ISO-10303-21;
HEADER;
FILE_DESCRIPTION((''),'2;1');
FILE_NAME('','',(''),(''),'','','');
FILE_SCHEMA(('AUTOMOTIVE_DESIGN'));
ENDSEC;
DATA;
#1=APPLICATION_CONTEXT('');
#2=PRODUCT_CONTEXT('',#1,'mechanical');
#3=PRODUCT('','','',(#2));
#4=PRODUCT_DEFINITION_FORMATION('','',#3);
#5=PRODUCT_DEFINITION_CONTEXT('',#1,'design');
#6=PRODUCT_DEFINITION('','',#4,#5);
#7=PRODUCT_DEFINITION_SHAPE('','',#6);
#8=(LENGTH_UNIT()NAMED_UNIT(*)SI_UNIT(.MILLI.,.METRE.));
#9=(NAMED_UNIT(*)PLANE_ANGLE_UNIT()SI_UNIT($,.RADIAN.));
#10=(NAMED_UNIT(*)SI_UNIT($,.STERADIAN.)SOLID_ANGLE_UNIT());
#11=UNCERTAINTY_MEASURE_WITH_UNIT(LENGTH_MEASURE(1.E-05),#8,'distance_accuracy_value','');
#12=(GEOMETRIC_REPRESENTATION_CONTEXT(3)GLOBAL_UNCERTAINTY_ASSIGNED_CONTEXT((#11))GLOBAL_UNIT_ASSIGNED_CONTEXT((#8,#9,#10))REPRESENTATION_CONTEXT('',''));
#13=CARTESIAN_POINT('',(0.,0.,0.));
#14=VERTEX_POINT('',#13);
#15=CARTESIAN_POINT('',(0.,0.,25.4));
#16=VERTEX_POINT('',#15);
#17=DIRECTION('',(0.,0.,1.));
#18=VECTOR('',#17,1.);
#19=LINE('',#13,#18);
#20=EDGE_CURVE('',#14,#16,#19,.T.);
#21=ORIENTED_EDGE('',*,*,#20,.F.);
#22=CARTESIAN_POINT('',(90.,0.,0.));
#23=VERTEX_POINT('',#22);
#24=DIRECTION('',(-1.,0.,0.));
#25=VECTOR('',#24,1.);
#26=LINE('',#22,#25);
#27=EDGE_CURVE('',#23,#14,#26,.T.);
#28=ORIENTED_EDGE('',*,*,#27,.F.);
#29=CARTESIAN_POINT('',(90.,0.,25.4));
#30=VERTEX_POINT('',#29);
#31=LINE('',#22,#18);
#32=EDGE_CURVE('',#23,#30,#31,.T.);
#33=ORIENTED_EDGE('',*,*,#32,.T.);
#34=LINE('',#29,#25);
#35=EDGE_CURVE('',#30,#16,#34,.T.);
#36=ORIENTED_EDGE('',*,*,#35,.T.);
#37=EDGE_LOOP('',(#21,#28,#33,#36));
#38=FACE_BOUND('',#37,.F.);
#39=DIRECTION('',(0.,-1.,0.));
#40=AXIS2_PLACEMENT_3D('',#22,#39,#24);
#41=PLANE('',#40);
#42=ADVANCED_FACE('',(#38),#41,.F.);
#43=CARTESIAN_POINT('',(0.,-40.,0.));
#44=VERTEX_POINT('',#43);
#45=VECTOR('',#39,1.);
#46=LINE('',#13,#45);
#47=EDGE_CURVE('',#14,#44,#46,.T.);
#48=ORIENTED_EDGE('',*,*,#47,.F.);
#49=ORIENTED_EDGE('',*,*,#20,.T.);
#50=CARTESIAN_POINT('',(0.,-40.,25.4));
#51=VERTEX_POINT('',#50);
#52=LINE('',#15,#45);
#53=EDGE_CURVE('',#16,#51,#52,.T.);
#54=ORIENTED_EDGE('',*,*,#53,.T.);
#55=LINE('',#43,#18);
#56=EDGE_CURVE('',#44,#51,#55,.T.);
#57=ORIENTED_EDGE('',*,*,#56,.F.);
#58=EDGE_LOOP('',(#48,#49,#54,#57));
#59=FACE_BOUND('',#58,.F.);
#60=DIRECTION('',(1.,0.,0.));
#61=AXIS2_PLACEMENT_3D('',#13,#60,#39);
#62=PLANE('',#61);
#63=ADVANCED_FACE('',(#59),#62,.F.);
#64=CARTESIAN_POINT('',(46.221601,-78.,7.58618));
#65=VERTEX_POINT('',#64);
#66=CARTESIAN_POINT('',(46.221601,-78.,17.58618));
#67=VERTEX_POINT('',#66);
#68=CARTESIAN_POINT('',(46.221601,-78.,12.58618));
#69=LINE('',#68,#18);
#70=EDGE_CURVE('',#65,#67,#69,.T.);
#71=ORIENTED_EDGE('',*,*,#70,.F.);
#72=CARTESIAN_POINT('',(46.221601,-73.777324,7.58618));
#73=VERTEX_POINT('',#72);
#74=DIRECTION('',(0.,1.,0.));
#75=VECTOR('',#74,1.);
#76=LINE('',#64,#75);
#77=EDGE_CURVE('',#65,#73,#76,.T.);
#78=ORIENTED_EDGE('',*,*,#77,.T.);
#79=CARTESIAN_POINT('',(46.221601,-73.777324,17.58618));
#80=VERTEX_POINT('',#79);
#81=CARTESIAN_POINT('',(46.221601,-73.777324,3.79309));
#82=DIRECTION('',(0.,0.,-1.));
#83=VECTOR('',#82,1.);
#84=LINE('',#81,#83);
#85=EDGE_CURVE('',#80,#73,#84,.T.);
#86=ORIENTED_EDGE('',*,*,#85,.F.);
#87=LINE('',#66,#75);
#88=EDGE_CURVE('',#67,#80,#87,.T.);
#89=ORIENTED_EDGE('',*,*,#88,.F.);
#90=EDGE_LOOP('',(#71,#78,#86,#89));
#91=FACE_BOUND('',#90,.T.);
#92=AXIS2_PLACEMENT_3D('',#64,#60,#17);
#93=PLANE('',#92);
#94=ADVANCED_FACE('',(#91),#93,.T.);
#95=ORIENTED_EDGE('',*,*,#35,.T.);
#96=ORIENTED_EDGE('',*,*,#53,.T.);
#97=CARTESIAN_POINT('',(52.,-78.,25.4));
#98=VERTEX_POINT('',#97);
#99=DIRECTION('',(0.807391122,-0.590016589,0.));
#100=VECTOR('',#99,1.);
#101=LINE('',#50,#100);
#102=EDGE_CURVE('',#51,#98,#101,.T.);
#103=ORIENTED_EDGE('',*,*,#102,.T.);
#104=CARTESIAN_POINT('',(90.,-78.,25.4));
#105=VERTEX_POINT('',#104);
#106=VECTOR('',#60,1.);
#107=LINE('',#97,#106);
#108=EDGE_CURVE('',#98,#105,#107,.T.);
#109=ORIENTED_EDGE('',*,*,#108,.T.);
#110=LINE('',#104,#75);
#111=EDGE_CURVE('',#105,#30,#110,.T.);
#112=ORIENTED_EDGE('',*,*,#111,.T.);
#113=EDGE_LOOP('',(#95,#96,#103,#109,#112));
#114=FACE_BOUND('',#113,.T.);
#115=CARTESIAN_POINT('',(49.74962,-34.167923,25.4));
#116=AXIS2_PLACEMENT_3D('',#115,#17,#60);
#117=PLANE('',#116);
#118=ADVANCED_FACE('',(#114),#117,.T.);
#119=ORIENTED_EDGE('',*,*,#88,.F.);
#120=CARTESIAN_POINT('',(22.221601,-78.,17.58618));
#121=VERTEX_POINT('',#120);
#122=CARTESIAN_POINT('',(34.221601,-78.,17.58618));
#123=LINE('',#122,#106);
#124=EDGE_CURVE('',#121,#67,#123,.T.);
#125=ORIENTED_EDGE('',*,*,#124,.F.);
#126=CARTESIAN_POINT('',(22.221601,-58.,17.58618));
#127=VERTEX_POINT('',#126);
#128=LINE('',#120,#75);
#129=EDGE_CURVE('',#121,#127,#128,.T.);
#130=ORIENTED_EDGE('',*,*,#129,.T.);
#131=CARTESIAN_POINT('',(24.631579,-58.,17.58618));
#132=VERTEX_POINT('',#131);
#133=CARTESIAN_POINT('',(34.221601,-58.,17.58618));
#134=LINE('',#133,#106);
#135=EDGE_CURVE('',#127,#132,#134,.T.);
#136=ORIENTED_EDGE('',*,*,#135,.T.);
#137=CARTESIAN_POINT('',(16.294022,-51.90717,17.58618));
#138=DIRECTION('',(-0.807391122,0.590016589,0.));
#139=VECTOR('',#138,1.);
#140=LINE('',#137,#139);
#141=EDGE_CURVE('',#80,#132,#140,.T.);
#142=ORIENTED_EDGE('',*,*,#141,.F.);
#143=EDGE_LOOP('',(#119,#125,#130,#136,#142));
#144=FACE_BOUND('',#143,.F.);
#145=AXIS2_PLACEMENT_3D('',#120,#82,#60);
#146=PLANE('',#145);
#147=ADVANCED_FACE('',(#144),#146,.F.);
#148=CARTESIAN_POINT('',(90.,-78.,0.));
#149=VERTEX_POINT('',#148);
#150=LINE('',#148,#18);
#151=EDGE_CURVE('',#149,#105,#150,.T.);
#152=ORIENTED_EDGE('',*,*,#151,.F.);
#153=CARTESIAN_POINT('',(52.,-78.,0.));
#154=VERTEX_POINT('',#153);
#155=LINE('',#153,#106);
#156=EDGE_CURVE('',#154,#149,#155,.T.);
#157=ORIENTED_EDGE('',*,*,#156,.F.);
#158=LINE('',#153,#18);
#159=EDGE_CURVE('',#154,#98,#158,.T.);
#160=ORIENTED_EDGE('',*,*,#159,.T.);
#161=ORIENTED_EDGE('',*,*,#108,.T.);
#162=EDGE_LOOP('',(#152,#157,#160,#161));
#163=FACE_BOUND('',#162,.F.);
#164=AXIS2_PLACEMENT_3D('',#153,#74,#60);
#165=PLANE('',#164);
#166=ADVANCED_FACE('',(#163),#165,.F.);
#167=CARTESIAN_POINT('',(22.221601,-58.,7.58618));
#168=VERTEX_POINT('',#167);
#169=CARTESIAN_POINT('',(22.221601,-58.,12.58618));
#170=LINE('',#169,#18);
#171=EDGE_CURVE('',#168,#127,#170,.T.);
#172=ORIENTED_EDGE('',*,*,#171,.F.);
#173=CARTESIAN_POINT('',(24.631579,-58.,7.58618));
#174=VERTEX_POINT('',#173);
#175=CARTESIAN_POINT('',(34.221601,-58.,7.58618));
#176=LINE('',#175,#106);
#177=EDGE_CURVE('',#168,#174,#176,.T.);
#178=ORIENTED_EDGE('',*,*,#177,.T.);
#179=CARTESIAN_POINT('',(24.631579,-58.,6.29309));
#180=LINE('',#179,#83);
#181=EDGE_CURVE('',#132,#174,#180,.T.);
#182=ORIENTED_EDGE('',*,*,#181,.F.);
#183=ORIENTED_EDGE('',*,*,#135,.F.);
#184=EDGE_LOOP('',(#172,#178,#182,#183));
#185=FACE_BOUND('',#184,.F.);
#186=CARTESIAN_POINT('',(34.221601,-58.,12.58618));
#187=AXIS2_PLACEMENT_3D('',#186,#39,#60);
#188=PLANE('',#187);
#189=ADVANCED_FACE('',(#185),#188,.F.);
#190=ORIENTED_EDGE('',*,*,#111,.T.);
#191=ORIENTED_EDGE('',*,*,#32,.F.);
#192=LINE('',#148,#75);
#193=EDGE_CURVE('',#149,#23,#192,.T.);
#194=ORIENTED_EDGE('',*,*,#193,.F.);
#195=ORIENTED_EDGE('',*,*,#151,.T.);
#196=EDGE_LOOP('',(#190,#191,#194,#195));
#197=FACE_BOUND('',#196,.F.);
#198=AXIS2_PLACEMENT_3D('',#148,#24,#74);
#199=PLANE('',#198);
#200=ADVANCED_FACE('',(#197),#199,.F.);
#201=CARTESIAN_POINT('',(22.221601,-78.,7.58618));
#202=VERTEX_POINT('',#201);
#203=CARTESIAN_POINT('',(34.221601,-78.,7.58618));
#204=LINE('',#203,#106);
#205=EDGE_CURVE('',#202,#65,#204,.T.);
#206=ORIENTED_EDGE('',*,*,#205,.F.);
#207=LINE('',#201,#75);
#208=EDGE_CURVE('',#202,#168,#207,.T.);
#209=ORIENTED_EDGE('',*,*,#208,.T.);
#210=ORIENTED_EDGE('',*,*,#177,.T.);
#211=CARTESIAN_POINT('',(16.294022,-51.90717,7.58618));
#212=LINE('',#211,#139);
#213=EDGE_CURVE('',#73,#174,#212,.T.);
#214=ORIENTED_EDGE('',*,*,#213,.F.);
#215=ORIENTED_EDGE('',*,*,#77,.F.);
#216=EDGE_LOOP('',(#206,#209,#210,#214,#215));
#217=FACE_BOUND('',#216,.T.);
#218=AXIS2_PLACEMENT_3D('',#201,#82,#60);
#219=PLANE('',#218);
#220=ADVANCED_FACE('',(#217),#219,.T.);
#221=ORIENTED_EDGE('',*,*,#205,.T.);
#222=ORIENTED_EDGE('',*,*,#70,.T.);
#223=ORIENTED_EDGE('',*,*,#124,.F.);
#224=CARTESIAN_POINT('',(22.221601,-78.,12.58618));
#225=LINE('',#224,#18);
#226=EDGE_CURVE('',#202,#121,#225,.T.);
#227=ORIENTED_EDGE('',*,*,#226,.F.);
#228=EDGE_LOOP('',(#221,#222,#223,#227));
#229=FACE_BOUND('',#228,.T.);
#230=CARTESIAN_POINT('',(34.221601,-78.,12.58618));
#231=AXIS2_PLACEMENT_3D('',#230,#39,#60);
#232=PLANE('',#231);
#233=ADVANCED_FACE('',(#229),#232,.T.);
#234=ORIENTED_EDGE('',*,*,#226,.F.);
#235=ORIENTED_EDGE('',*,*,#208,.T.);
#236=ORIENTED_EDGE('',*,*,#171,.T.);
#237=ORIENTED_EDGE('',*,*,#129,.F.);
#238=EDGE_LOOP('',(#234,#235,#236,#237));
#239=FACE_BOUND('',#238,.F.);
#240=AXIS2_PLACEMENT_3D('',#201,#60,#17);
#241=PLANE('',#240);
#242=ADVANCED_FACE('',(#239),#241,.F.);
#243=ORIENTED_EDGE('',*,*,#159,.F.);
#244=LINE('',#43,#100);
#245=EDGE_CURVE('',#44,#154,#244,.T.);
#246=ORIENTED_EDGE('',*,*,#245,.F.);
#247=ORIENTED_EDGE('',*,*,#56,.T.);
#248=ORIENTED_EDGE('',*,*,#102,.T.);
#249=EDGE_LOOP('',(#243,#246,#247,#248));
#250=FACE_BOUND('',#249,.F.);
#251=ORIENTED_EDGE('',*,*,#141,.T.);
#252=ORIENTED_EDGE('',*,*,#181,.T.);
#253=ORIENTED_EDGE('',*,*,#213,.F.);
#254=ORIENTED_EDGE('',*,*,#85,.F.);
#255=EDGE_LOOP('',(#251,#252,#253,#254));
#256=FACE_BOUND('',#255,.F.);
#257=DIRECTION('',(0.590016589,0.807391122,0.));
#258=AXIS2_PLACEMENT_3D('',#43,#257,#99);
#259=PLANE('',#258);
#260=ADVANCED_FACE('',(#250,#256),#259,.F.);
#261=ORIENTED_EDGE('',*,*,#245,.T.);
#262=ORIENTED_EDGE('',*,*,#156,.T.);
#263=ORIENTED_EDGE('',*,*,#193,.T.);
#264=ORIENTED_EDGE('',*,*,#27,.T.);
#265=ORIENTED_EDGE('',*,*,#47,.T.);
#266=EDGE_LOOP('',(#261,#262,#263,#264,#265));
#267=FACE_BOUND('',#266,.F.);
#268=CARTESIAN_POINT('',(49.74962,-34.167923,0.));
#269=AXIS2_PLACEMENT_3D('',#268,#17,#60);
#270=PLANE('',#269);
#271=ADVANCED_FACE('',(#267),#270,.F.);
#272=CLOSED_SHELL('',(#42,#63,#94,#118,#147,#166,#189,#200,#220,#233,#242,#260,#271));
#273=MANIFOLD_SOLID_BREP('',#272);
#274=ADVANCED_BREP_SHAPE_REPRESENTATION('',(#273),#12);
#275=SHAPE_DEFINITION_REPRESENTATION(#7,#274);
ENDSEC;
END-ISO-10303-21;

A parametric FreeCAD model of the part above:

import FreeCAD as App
import Part
import Sketcher
Q = App.Units.Quantity

doc = App.newDocument("Part")
body = doc.addObject("PartDesign::Body", "Body")

# Sketch on XY plane
sketch1 = body.newObject("Sketcher::SketchObject", "Sketch")
sketch1.AttachmentSupport = (doc.getObject("XY_Plane"), [""])
sketch1.MapMode = "FlatFace"
sketch1.addGeometry([
    Part.LineSegment(App.Vector(90, 0, 0), App.Vector(0, 0, 0)),  # 0
    Part.LineSegment(App.Vector(0, 0, 0), App.Vector(0, -40, 0)),  # 1
    Part.LineSegment(App.Vector(0, -40, 0), App.Vector(52, -78, 0)),  # 2
    Part.LineSegment(App.Vector(52, -78, 0), App.Vector(90, -78, 0)),  # 3
    Part.LineSegment(App.Vector(90, -78, 0), App.Vector(90, 0, 0)),  # 4
], False)
sketch1.addConstraint([
    Sketcher.Constraint("Coincident", 0, 2, 1, 1),
    Sketcher.Constraint("Coincident", 1, 2, 2, 1),
    Sketcher.Constraint("Coincident", 2, 2, 3, 1),
    Sketcher.Constraint("Coincident", 3, 2, 4, 1),
    Sketcher.Constraint("Coincident", 4, 2, 0, 1),
    Sketcher.Constraint("Horizontal", 0),
    Sketcher.Constraint("Vertical", 1),
    Sketcher.Constraint("Horizontal", 3),
    Sketcher.Constraint("Vertical", 4),
    Sketcher.Constraint("Coincident", 0, 2, -1, 1),
    Sketcher.Constraint("DistanceX", 0, 2, 0, 1, Q("90 mm")),
    Sketcher.Constraint("DistanceX", 3, 1, 3, 2, Q("38 mm")),
    Sketcher.Constraint("DistanceY", 1, 2, 1, 1, Q("40 mm")),
    Sketcher.Constraint("DistanceY", 4, 1, 4, 2, Q("78 mm")),
])
pad1 = body.newObject("PartDesign::Pad", "Pad")
pad1.Profile = sketch1
pad1.Length = 25.4

# Sketch on XZ plane
sketch2 = body.newObject("Sketcher::SketchObject", "Sketch001")
sketch2.AttachmentSupport = (doc.getObject("XZ_Plane"), [""])
sketch2.MapMode = "FlatFace"
sketch2.AttachmentOffset = App.Placement(App.Vector(0, 0, 78), App.Rotation())
sketch2.addGeometry([
    Part.LineSegment(App.Vector(22, 18, 0), App.Vector(22, 8, 0)),
    Part.LineSegment(App.Vector(22, 8, 0), App.Vector(46, 8, 0)),
    Part.LineSegment(App.Vector(46, 8, 0), App.Vector(46, 18, 0)),
    Part.LineSegment(App.Vector(46, 18, 0), App.Vector(22, 18, 0)),
], False)
sketch2.addConstraint([
    Sketcher.Constraint("Coincident", 0, 2, 1, 1),
    Sketcher.Constraint("Coincident", 1, 2, 2, 1),
    Sketcher.Constraint("Coincident", 2, 2, 3, 1),
    Sketcher.Constraint("Coincident", 3, 2, 0, 1),
    Sketcher.Constraint("Vertical", 0),
    Sketcher.Constraint("Horizontal", 1),
    Sketcher.Constraint("Vertical", 2),
    Sketcher.Constraint("Horizontal", 3),
    Sketcher.Constraint("DistanceX", 1, 1, 1, 2, Q("24 mm")),
    Sketcher.Constraint("DistanceY", 0, 2, 0, 1, Q("10 mm")),
    Sketcher.Constraint("DistanceX", -1, 1, 0, 2, Q("22.221601 mm")),
    Sketcher.Constraint("DistanceY", -1, 1, 0, 2, Q("7.58618 mm")),
])
pad2 = body.newObject("PartDesign::Pad", "Pad001")
pad2.Profile = sketch2
pad2.Length = 20
pad2.Reversed = True

doc.recompute()
